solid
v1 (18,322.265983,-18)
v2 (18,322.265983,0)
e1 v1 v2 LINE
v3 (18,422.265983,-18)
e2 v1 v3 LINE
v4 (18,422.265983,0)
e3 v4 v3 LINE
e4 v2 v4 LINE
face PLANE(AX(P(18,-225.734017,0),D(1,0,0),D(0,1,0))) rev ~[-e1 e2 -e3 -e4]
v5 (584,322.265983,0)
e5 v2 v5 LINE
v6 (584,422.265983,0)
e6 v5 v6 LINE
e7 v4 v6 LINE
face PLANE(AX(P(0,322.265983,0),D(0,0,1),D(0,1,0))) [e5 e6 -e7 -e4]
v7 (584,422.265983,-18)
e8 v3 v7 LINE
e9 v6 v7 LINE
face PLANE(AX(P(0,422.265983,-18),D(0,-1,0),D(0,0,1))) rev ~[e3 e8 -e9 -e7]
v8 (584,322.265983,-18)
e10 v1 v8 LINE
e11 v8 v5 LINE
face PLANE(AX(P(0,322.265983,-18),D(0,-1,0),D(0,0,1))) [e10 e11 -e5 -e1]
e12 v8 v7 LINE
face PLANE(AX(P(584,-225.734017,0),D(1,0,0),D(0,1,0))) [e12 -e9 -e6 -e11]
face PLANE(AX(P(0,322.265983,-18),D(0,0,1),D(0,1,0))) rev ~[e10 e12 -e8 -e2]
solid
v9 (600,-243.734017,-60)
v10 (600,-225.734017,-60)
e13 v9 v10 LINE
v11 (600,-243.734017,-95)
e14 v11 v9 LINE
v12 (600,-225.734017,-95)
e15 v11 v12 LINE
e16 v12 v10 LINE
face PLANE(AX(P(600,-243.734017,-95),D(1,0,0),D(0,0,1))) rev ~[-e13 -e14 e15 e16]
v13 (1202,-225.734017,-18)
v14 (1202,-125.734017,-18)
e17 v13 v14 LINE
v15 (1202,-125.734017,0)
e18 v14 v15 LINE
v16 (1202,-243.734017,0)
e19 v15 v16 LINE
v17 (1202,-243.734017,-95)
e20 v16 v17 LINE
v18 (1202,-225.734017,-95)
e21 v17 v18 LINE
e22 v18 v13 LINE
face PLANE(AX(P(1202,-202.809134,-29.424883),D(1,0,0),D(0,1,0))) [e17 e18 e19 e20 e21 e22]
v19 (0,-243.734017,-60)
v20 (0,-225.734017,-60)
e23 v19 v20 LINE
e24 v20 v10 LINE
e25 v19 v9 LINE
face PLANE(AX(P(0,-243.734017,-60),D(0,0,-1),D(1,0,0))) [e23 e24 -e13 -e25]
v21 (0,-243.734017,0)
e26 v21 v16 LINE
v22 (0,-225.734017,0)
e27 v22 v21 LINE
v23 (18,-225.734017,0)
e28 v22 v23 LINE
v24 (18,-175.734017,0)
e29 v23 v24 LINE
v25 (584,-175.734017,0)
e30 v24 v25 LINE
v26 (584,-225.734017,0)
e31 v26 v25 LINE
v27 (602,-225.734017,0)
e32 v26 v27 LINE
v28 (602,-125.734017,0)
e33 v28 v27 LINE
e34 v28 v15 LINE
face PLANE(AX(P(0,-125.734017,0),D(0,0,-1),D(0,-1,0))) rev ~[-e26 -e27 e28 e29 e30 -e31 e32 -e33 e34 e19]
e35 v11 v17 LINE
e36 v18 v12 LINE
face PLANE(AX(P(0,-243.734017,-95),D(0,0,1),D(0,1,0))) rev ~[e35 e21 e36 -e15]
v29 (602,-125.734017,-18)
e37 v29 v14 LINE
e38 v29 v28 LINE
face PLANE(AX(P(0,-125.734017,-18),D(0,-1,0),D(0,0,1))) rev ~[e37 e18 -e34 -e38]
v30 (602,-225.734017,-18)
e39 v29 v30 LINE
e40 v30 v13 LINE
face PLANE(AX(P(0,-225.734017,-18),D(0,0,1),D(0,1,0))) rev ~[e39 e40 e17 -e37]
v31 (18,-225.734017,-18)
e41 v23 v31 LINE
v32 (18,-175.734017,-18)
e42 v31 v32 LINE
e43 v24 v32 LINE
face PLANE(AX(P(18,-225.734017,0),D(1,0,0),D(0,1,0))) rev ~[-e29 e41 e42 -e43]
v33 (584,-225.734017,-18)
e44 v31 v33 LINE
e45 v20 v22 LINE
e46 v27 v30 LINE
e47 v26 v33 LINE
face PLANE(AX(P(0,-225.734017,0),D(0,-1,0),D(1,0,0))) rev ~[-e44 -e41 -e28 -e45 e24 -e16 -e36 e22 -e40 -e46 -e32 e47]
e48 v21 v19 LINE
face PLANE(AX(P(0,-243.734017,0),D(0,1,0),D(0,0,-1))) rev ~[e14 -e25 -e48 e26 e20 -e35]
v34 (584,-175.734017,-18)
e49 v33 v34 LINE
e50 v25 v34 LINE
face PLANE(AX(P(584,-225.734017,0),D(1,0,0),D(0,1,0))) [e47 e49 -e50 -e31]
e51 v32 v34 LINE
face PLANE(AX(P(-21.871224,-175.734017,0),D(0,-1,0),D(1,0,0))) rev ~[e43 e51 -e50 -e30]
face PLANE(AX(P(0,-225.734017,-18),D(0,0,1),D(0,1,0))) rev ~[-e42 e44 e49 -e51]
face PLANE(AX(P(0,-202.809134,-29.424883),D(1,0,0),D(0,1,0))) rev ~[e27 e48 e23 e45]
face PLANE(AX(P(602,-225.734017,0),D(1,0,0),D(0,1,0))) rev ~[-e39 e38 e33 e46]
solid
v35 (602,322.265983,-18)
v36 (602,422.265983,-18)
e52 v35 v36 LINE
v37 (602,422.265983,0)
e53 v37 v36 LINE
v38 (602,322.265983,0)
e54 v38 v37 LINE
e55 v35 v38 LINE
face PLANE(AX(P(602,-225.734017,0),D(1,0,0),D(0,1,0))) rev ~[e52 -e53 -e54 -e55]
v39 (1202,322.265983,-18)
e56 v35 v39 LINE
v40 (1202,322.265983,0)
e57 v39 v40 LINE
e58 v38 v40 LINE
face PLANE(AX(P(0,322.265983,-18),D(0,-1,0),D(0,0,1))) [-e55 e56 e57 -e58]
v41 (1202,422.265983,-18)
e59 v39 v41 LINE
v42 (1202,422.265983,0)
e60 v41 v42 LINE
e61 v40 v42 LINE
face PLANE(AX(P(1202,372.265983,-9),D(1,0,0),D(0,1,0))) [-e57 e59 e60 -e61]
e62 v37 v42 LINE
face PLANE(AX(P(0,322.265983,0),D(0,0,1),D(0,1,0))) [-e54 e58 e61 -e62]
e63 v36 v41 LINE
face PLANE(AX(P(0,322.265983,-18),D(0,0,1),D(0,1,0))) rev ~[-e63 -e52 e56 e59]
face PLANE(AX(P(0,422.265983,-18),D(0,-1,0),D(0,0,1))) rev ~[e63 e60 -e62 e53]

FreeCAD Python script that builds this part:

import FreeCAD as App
import Part
import Sketcher


def add_polygon(sketch, points):
    """Adds a closed chain of lines whose ends are joined by coincident constraints."""
    first, n = sketch.GeometryCount, len(points)
    for a, b in zip(points, points[1:] + points[:1]):
        sketch.addGeometry(Part.LineSegment(App.Vector(*a, 0), App.Vector(*b, 0)), False)
    for i in range(n):
        sketch.addConstraint(Sketcher.Constraint("Coincident", first + i, 2, first + (i + 1) % n, 1))

doc = App.newDocument("Part")
body = doc.addObject("PartDesign::Body", "Body")
body.AllowCompound = True

sketch1 = body.newObject("Sketcher::SketchObject", "Sketch")
sketch1.AttachmentSupport = (doc.getObject("YZ_Plane"), [""])
sketch1.MapMode = "FlatFace"
add_polygon(sketch1, [(322.265983, 0), (322.265983, -18), (422.265983, -18), (422.265983, 0)])
add_polygon(sketch1, [(-125.734017, -18), (-125.734017, 0), (-243.734017, 0), (-243.734017, -95), (-225.734017, -95), (-225.734017, -18)])
sketch1.addConstraint(Sketcher.Constraint("Vertical", 0))
sketch1.addConstraint(Sketcher.Constraint("Horizontal", 1))
sketch1.addConstraint(Sketcher.Constraint("Vertical", 2))
sketch1.addConstraint(Sketcher.Constraint("Horizontal", 3))
sketch1.addConstraint(Sketcher.Constraint("Vertical", 4))
sketch1.addConstraint(Sketcher.Constraint("Horizontal", 5))
sketch1.addConstraint(Sketcher.Constraint("Vertical", 6))
sketch1.addConstraint(Sketcher.Constraint("Horizontal", 7))
sketch1.addConstraint(Sketcher.Constraint("Vertical", 8))
sketch1.addConstraint(Sketcher.Constraint("Horizontal", 9))
sketch1.addConstraint(Sketcher.Constraint("PointOnObject", 2, 2, -1))
sketch1.addConstraint(Sketcher.Constraint("PointOnObject", 4, 2, -1))
sketch1.addConstraint(Sketcher.Constraint("Horizontal", 1, 2, 8, 2))
sketch1.addConstraint(Sketcher.Constraint("Equal", 3, 9))
sketch1.addConstraint(Sketcher.Constraint("Equal", 7, 0))
sketch1.addConstraint(Sketcher.Constraint("DistanceX", 1, 1, 1, 2, 100.0))
sketch1.addConstraint(Sketcher.Constraint("DistanceX", 5, 2, 5, 1, 118.0))
sketch1.addConstraint(Sketcher.Constraint("DistanceY", 6, 2, 6, 1, 95.0))
sketch1.addConstraint(Sketcher.Constraint("DistanceX", 4, 2, 3, 2, 448.0))
sketch1.addConstraint(Sketcher.Constraint("DistanceX", -1, 1, 0, 2, 322.265983))
pad1 = body.newObject("PartDesign::Pad", "Pad")
pad1.Profile = sketch1
pad1.Length = 1202

sketch2 = body.newObject("Sketcher::SketchObject", "Sketch001")
sketch2.AttachmentSupport = (doc.getObject("XY_Plane"), [""])
sketch2.MapMode = "FlatFace"
add_polygon(sketch2, [(584, 422.265983), (584, -225.734017), (602, -225.734017), (602, 422.265983)])
add_polygon(sketch2, [(0, 422.265983), (0, -225.734017), (18, -225.734017), (18, 422.265983)])
sketch2.addConstraint(Sketcher.Constraint("Vertical", 0))
sketch2.addConstraint(Sketcher.Constraint("Horizontal", 1))
sketch2.addConstraint(Sketcher.Constraint("Vertical", 2))
sketch2.addConstraint(Sketcher.Constraint("Horizontal", 3))
sketch2.addConstraint(Sketcher.Constraint("Vertical", 4))
sketch2.addConstraint(Sketcher.Constraint("Horizontal", 5))
sketch2.addConstraint(Sketcher.Constraint("Vertical", 6))
sketch2.addConstraint(Sketcher.Constraint("Horizontal", 7))
sketch2.addConstraint(Sketcher.Constraint("PointOnObject", 4, 2, -2))
sketch2.addConstraint(Sketcher.Constraint("Horizontal", 1, 2, 4, 2))
sketch2.addConstraint(Sketcher.Constraint("Horizontal", 3, 2, 6, 2))
sketch2.addConstraint(Sketcher.Constraint("Equal", 3, 5))
sketch2.addConstraint(Sketcher.Constraint("DistanceX", 1, 1, 1, 2, 18.0))
sketch2.addConstraint(Sketcher.Constraint("DistanceY", 0, 2, 0, 1, 648.0))
sketch2.addConstraint(Sketcher.Constraint("DistanceX", -1, 1, 0, 2, 584.0))
sketch2.addConstraint(Sketcher.Constraint("DistanceY", 0, 2, -1, 1, 225.734017))
pocket1 = body.newObject("PartDesign::Pocket", "Pocket")
pocket1.Profile = sketch2
pocket1.Length = 95

sketch3 = body.newObject("Sketcher::SketchObject", "Sketch002")
sketch3.AttachmentSupport = (doc.getObject("XZ_Plane"), [""])
sketch3.MapMode = "FlatFace"
sketch3.AttachmentOffset = App.Placement(App.Vector(0, 0, 243.734017), App.Rotation())
add_polygon(sketch3, [(0, -60), (0, -95), (600, -95), (600, -60)])
sketch3.addConstraint(Sketcher.Constraint("Vertical", 0))
sketch3.addConstraint(Sketcher.Constraint("Horizontal", 1))
sketch3.addConstraint(Sketcher.Constraint("Vertical", 2))
sketch3.addConstraint(Sketcher.Constraint("Horizontal", 3))
sketch3.addConstraint(Sketcher.Constraint("PointOnObject", 0, 2, -2))
sketch3.addConstraint(Sketcher.Constraint("DistanceX", 1, 1, 1, 2, 600.0))
sketch3.addConstraint(Sketcher.Constraint("DistanceY", 0, 2, 0, 1, 35.0))
sketch3.addConstraint(Sketcher.Constraint("DistanceY", 0, 2, -1, 1, 95.0))
pocket2 = body.newObject("PartDesign::Pocket", "Pocket001")
pocket2.Profile = sketch3
pocket2.Length = 25

sketch4 = body.newObject("Sketcher::SketchObject", "Sketch003")
sketch4.AttachmentSupport = (doc.getObject("XY_Plane"), [""])
sketch4.MapMode = "FlatFace"
add_polygon(sketch4, [(602, -175.734017), (602, -125.734017), (-21.871224, -125.734017), (-21.871224, -175.734017)])
sketch4.addConstraint(Sketcher.Constraint("Vertical", 0))
sketch4.addConstraint(Sketcher.Constraint("Horizontal", 1))
sketch4.addConstraint(Sketcher.Constraint("Vertical", 2))
sketch4.addConstraint(Sketcher.Constraint("Horizontal", 3))
sketch4.addConstraint(Sketcher.Constraint("DistanceY", 0, 1, 0, 2, 50.0))
sketch4.addConstraint(Sketcher.Constraint("DistanceX", -1, 1, 0, 2, 602.0))
sketch4.addConstraint(Sketcher.Constraint("DistanceX", 1, 2, 1, 1, 623.871224))
sketch4.addConstraint(Sketcher.Constraint("DistanceY", 0, 2, -1, 1, 125.734017))
pocket3 = body.newObject("PartDesign::Pocket", "Pocket002")
pocket3.Profile = sketch4
pocket3.Length = 18

doc.recompute()
